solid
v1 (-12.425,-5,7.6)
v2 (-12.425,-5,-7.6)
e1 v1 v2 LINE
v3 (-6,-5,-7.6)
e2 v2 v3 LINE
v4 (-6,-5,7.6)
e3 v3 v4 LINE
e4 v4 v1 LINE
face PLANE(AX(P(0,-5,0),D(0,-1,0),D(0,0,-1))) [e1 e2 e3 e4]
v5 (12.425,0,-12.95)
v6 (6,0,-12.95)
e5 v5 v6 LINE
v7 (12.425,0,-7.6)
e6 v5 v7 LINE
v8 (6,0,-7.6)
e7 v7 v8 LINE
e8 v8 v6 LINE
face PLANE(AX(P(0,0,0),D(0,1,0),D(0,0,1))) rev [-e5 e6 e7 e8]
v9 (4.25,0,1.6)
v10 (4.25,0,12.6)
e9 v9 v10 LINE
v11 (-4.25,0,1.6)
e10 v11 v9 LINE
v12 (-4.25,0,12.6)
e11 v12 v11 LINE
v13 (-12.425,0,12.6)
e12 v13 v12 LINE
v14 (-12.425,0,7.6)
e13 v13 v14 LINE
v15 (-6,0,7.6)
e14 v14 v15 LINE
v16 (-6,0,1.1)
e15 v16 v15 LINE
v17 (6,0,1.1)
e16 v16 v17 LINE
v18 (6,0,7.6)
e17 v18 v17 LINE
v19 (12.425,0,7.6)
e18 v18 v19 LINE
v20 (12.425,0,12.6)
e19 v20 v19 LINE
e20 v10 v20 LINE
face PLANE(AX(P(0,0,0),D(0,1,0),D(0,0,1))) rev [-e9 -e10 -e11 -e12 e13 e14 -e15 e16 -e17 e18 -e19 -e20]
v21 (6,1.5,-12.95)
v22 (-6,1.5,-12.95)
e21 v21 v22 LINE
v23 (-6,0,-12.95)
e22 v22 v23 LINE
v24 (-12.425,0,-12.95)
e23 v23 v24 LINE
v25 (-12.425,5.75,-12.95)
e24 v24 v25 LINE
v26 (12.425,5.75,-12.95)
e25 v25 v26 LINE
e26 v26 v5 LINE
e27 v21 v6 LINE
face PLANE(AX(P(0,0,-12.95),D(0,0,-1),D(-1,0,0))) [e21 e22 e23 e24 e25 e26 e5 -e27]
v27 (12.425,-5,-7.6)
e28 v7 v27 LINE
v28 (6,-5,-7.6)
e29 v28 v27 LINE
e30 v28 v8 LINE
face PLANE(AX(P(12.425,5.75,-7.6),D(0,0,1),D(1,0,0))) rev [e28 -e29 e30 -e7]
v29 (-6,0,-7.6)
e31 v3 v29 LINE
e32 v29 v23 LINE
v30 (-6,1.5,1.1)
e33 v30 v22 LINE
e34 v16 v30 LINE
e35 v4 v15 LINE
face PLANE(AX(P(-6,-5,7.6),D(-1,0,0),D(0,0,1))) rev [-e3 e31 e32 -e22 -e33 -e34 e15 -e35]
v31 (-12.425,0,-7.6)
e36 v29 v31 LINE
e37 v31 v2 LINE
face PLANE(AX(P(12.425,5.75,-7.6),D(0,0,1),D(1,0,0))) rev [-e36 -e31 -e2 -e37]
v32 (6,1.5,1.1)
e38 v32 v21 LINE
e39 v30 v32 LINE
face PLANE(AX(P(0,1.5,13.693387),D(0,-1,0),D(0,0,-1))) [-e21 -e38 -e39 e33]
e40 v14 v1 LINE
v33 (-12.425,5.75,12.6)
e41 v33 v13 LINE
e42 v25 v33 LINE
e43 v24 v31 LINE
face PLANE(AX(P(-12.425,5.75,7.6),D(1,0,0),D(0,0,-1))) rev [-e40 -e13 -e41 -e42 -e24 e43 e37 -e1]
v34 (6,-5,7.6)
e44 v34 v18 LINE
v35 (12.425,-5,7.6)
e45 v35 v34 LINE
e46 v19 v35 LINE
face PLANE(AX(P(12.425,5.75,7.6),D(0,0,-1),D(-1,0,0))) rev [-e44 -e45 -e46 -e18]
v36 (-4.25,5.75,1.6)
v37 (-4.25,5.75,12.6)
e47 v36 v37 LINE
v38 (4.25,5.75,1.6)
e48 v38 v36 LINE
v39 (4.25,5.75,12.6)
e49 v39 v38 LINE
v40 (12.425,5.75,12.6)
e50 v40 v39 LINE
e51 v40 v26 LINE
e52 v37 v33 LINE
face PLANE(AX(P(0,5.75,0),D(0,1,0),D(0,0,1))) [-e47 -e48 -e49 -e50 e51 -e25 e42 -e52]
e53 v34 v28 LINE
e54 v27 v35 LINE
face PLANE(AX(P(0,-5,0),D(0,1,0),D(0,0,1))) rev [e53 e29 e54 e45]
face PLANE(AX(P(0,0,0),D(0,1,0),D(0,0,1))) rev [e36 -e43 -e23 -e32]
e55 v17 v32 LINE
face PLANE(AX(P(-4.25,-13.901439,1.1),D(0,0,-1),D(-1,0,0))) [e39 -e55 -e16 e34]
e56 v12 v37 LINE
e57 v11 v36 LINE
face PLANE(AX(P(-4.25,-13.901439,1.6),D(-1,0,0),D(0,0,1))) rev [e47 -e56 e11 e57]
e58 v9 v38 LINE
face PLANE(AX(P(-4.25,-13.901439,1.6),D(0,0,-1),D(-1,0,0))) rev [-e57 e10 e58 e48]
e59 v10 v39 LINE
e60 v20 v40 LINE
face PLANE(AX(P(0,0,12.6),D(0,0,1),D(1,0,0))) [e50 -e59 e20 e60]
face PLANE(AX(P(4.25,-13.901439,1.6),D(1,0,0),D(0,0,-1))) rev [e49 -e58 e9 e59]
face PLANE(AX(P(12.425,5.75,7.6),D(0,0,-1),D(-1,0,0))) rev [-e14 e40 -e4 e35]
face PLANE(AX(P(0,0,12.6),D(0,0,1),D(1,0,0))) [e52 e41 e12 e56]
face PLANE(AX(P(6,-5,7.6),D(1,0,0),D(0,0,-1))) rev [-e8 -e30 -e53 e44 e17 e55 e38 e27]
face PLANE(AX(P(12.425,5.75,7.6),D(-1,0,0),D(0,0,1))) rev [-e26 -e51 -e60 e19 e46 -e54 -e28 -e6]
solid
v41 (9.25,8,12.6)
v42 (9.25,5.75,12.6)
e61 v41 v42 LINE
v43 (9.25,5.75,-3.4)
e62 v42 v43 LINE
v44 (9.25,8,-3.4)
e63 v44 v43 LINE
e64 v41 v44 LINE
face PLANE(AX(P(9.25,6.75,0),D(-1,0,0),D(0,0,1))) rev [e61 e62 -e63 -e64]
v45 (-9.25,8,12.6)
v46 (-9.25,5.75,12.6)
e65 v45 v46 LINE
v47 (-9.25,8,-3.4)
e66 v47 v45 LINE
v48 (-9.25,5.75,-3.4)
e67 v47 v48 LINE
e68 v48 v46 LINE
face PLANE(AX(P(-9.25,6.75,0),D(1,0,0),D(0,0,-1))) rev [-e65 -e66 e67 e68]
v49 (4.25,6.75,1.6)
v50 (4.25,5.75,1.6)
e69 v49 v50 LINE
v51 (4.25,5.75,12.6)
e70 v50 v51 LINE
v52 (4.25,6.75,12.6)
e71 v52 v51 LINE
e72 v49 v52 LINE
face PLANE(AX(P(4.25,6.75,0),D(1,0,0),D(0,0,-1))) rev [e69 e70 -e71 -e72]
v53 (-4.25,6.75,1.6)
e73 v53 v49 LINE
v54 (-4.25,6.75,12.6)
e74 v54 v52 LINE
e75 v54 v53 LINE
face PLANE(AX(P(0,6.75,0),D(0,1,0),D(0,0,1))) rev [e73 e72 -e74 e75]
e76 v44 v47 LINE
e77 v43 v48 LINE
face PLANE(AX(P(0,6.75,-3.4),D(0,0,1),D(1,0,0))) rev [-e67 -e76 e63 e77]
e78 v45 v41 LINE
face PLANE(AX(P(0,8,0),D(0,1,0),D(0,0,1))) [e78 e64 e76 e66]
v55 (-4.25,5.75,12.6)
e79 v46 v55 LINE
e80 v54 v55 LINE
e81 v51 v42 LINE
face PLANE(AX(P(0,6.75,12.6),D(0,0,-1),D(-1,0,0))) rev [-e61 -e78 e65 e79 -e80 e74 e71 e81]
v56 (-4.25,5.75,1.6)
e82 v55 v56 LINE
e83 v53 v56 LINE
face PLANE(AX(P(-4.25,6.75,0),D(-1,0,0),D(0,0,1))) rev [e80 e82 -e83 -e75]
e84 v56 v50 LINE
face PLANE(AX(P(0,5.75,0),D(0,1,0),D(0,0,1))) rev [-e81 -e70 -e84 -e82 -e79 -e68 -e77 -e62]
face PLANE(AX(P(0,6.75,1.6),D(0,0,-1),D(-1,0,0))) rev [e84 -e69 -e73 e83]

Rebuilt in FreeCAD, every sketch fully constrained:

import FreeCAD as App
import Part
import Sketcher

doc = App.newDocument("Part")
body = doc.addObject("PartDesign::Body", "Body")

# Sketch on XZ plane
sketch1 = body.newObject("Sketcher::SketchObject", "Sketch")
sketch1.AttachmentSupport = (doc.getObject("XZ_Plane"), [""])
sketch1.MapMode = "FlatFace"
sketch1.addGeometry([
    Part.LineSegment(App.Vector(-12, -8, 0), App.Vector(-12, 8, 0)),
    Part.LineSegment(App.Vector(-12, 8, 0), App.Vector(12, 8, 0)),
    Part.LineSegment(App.Vector(12, 8, 0), App.Vector(12, -8, 0)),
    Part.LineSegment(App.Vector(12, -8, 0), App.Vector(-12, -8, 0)),
], False)
sketch1.addConstraint([
    Sketcher.Constraint("Coincident", 0, 2, 1, 1),
    Sketcher.Constraint("Coincident", 1, 2, 2, 1),
    Sketcher.Constraint("Coincident", 2, 2, 3, 1),
    Sketcher.Constraint("Coincident", 3, 2, 0, 1),
    Sketcher.Constraint("Vertical", 0),
    Sketcher.Constraint("Horizontal", 1),
    Sketcher.Constraint("Vertical", 2),
    Sketcher.Constraint("Horizontal", 3),
    Sketcher.Constraint("Symmetric", 0, 2, 2, 2, -1, 1),
    Sketcher.Constraint("DistanceY", 0, 1, 0, 2, 15.2),
    Sketcher.Constraint("DistanceX", 1, 1, 1, 2, 24.85),
])
pad1 = body.newObject("PartDesign::Pad", "Pad")
pad1.Profile = sketch1
pad1.Length = 5.75
pad1.Reversed = True

# Sketch on XZ plane
sketch2 = body.newObject("Sketcher::SketchObject", "Sketch001")
sketch2.AttachmentSupport = (doc.getObject("XZ_Plane"), [""])
sketch2.MapMode = "FlatFace"
sketch2.addGeometry([
    Part.LineSegment(App.Vector(-12, 8, 0), App.Vector(-12, -8, 0)),  # 0
    Part.LineSegment(App.Vector(-12, -8, 0), App.Vector(-6, -8, 0)),  # 1
    Part.LineSegment(App.Vector(-6, -8, 0), App.Vector(-6, 8, 0)),  # 2
    Part.LineSegment(App.Vector(-6, 8, 0), App.Vector(-12, 8, 0)),  # 3
    Part.LineSegment(App.Vector(6, 8, 0), App.Vector(6, -8, 0)),  # 4
    Part.LineSegment(App.Vector(6, -8, 0), App.Vector(12, -8, 0)),  # 5
    Part.LineSegment(App.Vector(12, -8, 0), App.Vector(12, 8, 0)),  # 6
    Part.LineSegment(App.Vector(12, 8, 0), App.Vector(6, 8, 0)),  # 7
], False)
sketch2.addConstraint([
    Sketcher.Constraint("Coincident", 0, 2, 1, 1),
    Sketcher.Constraint("Coincident", 1, 2, 2, 1),
    Sketcher.Constraint("Coincident", 2, 2, 3, 1),
    Sketcher.Constraint("Coincident", 3, 2, 0, 1),
    Sketcher.Constraint("Coincident", 4, 2, 5, 1),
    Sketcher.Constraint("Coincident", 5, 2, 6, 1),
    Sketcher.Constraint("Coincident", 6, 2, 7, 1),
    Sketcher.Constraint("Coincident", 7, 2, 4, 1),
    Sketcher.Constraint("Vertical", 0),
    Sketcher.Constraint("Horizontal", 1),
    Sketcher.Constraint("Vertical", 2),
    Sketcher.Constraint("Horizontal", 3),
    Sketcher.Constraint("Vertical", 4),
    Sketcher.Constraint("Horizontal", 5),
    Sketcher.Constraint("Vertical", 6),
    Sketcher.Constraint("Horizontal", 7),
    Sketcher.Constraint("Symmetric", 2, 2, 4, 2, -1, 1),
    Sketcher.Constraint("Symmetric", 0, 2, 6, 2, -1, 1),
    Sketcher.Constraint("Horizontal", 1, 2, 4, 2),
    Sketcher.Constraint("DistanceY", 0, 2, 0, 1, 15.2),
    Sketcher.Constraint("DistanceX", 1, 2, -1, 1, 6.0),
    Sketcher.Constraint("DistanceX", 1, 1, 1, 2, 6.425),
])
pad2 = body.newObject("PartDesign::Pad", "Pad001")
pad2.Profile = sketch2
pad2.Length = 5

# Sketch on XY plane
sketch3 = body.newObject("Sketcher::SketchObject", "Sketch002")
sketch3.AttachmentSupport = (doc.getObject("XY_Plane"), [""])
sketch3.MapMode = "FlatFace"
sketch3.AttachmentOffset = App.Placement(App.Vector(0, 0, -7.6), App.Rotation())
sketch3.addGeometry([
    Part.LineSegment(App.Vector(12, 6, 0), App.Vector(12, 0, 0)),
    Part.LineSegment(App.Vector(12, 0, 0), App.Vector(-12, 0, 0)),
    Part.LineSegment(App.Vector(-12, 0, 0), App.Vector(-12, 6, 0)),
    Part.LineSegment(App.Vector(-12, 6, 0), App.Vector(12, 6, 0)),
], False)
sketch3.addConstraint([
    Sketcher.Constraint("Coincident", 0, 2, 1, 1),
    Sketcher.Constraint("Coincident", 1, 2, 2, 1),
    Sketcher.Constraint("Coincident", 2, 2, 3, 1),
    Sketcher.Constraint("Coincident", 3, 2, 0, 1),
    Sketcher.Constraint("Vertical", 0),
    Sketcher.Constraint("Horizontal", 1),
    Sketcher.Constraint("Vertical", 2),
    Sketcher.Constraint("Horizontal", 3),
    Sketcher.Constraint("Symmetric", 0, 2, 1, 2, -1, 1),
    Sketcher.Constraint("DistanceX", 1, 2, 1, 1, 24.85),
    Sketcher.Constraint("DistanceY", 0, 2, 0, 1, 5.75),
])
pad3 = body.newObject("PartDesign::Pad", "Pad002")
pad3.Profile = sketch3
pad3.Length = 5.35
pad3.Reversed = True

# Sketch on XY plane
sketch4 = body.newObject("Sketcher::SketchObject", "Sketch003")
sketch4.AttachmentSupport = (doc.getObject("XY_Plane"), [""])
sketch4.MapMode = "FlatFace"
sketch4.AttachmentOffset = App.Placement(App.Vector(0, 0, 7.6), App.Rotation())
sketch4.addGeometry([
    Part.LineSegment(App.Vector(-12, 6, 0), App.Vector(-12, 0, 0)),
    Part.LineSegment(App.Vector(-12, 0, 0), App.Vector(12, 0, 0)),
    Part.LineSegment(App.Vector(12, 0, 0), App.Vector(12, 6, 0)),
    Part.LineSegment(App.Vector(12, 6, 0), App.Vector(-12, 6, 0)),
], False)
sketch4.addConstraint([
    Sketcher.Constraint("Coincident", 0, 2, 1, 1),
    Sketcher.Constraint("Coincident", 1, 2, 2, 1),
    Sketcher.Constraint("Coincident", 2, 2, 3, 1),
    Sketcher.Constraint("Coincident", 3, 2, 0, 1),
    Sketcher.Constraint("Vertical", 0),
    Sketcher.Constraint("Horizontal", 1),
    Sketcher.Constraint("Vertical", 2),
    Sketcher.Constraint("Horizontal", 3),
    Sketcher.Constraint("Symmetric", 0, 2, 1, 2, -1, 1),
    Sketcher.Constraint("DistanceX", 1, 1, 1, 2, 24.85),
    Sketcher.Constraint("DistanceY", 0, 2, 0, 1, 5.75),
])
pad4 = body.newObject("PartDesign::Pad", "Pad003")
pad4.Profile = sketch4
pad4.Length = 5

# Sketch on XZ plane
sketch5 = body.newObject("Sketcher::SketchObject", "Sketch004")
sketch5.AttachmentSupport = (doc.getObject("XZ_Plane"), [""])
sketch5.MapMode = "FlatFace"
sketch5.AttachmentOffset = App.Placement(App.Vector(0, 0, -5.75), App.Rotation())
sketch5.addGeometry([
    Part.LineSegment(App.Vector(-4, 2, 0), App.Vector(-4, 13, 0)),
    Part.LineSegment(App.Vector(-4, 13, 0), App.Vector(4, 13, 0)),
    Part.LineSegment(App.Vector(4, 13, 0), App.Vector(4, 2, 0)),
    Part.LineSegment(App.Vector(4, 2, 0), App.Vector(-4, 2, 0)),
], False)
sketch5.addConstraint([
    Sketcher.Constraint("Coincident", 0, 2, 1, 1),
    Sketcher.Constraint("Coincident", 1, 2, 2, 1),
    Sketcher.Constraint("Coincident", 2, 2, 3, 1),
    Sketcher.Constraint("Coincident", 3, 2, 0, 1),
    Sketcher.Constraint("Vertical", 0),
    Sketcher.Constraint("Horizontal", 1),
    Sketcher.Constraint("Vertical", 2),
    Sketcher.Constraint("Horizontal", 3),
    Sketcher.Constraint("DistanceY", 0, 1, 0, 2, 11.0),
    Sketcher.Constraint("DistanceX", 1, 1, 1, 2, 8.5),
    Sketcher.Constraint("DistanceY", -1, 1, 0, 2, 12.6),
    Sketcher.Constraint("DistanceX", 0, 2, -1, 1, 4.25),
])
pocket1 = body.newObject("PartDesign::Pocket", "Pocket")
pocket1.Profile = sketch5
pocket1.Length = 5.75
pocket1.Reversed = True

# Sketch on XY plane
sketch6 = body.newObject("Sketcher::SketchObject", "Sketch005")
sketch6.AttachmentSupport = (doc.getObject("XY_Plane"), [""])
sketch6.MapMode = "FlatFace"
sketch6.AttachmentOffset = App.Placement(App.Vector(0, 0, -12.95), App.Rotation())
sketch6.addGeometry([
    Part.LineSegment(App.Vector(6, 1.5, 0), App.Vector(6, 0, 0)),
    Part.LineSegment(App.Vector(6, 0, 0), App.Vector(-6, 0, 0)),
    Part.LineSegment(App.Vector(-6, 0, 0), App.Vector(-6, 1.5, 0)),
    Part.LineSegment(App.Vector(-6, 1.5, 0), App.Vector(6, 1.5, 0)),
], False)
sketch6.addConstraint([
    Sketcher.Constraint("Coincident", 0, 2, 1, 1),
    Sketcher.Constraint("Coincident", 1, 2, 2, 1),
    Sketcher.Constraint("Coincident", 2, 2, 3, 1),
    Sketcher.Constraint("Coincident", 3, 2, 0, 1),
    Sketcher.Constraint("Vertical", 0),
    Sketcher.Constraint("Horizontal", 1),
    Sketcher.Constraint("Vertical", 2),
    Sketcher.Constraint("Horizontal", 3),
    Sketcher.Constraint("Symmetric", 0, 2, 1, 2, -1, 1),
    Sketcher.Constraint("DistanceX", 1, 2, 1, 1, 12.0),
    Sketcher.Constraint("DistanceY", 0, 2, 0, 1, 1.5),
])
pocket2 = body.newObject("PartDesign::Pocket", "Pocket001")
pocket2.Profile = sketch6
pocket2.Length = 14.05
pocket2.Reversed = True
body2 = doc.addObject("PartDesign::Body", "Body001")

# Sketch on XZ plane
sketch7 = body2.newObject("Sketcher::SketchObject", "Sketch006")
sketch7.AttachmentSupport = (doc.getObject("XZ_Plane001"), [""])
sketch7.MapMode = "FlatFace"
sketch7.AttachmentOffset = App.Placement(App.Vector(0, 0, -5.75), App.Rotation())
sketch7.addGeometry([
    Part.LineSegment(App.Vector(9, -3, 0), App.Vector(-9, -3, 0)),  # 0
    Part.LineSegment(App.Vector(-9, -3, 0), App.Vector(-9, 13, 0)),  # 1
    Part.LineSegment(App.Vector(-9, 13, 0), App.Vector(-4, 13, 0)),  # 2
    Part.LineSegment(App.Vector(-4, 13, 0), App.Vector(-4, 2, 0)),  # 3
    Part.LineSegment(App.Vector(-4, 2, 0), App.Vector(4, 2, 0)),  # 4
    Part.LineSegment(App.Vector(4, 2, 0), App.Vector(4, 13, 0)),  # 5
    Part.LineSegment(App.Vector(4, 13, 0), App.Vector(9, 13, 0)),  # 6
    Part.LineSegment(App.Vector(9, 13, 0), App.Vector(9, -3, 0)),  # 7
], False)
sketch7.addConstraint([
    Sketcher.Constraint("Coincident", 0, 2, 1, 1),
    Sketcher.Constraint("Coincident", 1, 2, 2, 1),
    Sketcher.Constraint("Coincident", 2, 2, 3, 1),
    Sketcher.Constraint("Coincident", 3, 2, 4, 1),
    Sketcher.Constraint("Coincident", 4, 2, 5, 1),
    Sketcher.Constraint("Coincident", 5, 2, 6, 1),
    Sketcher.Constraint("Coincident", 6, 2, 7, 1),
    Sketcher.Constraint("Coincident", 7, 2, 0, 1),
    Sketcher.Constraint("Horizontal", 0),
    Sketcher.Constraint("Vertical", 1),
    Sketcher.Constraint("Horizontal", 2),
    Sketcher.Constraint("Vertical", 3),
    Sketcher.Constraint("Horizontal", 4),
    Sketcher.Constraint("Vertical", 5),
    Sketcher.Constraint("Horizontal", 6),
    Sketcher.Constraint("Vertical", 7),
    Sketcher.Constraint("Symmetric", 2, 2, 5, 2, -2),
    Sketcher.Constraint("Equal", 2, 6),
    Sketcher.Constraint("DistanceX", 2, 1, 2, 2, 5.0),
    Sketcher.Constraint("DistanceY", 1, 1, 1, 2, 16.0),
    Sketcher.Constraint("DistanceY", 3, 2, 3, 1, 11.0),
    Sketcher.Constraint("DistanceX", 0, 2, 0, 1, 18.5),
    Sketcher.Constraint("DistanceY", 0, 2, -1, 1, 3.4),
])
pad5 = body2.newObject("PartDesign::Pad", "Pad004")
pad5.Profile = sketch7
pad5.Length = 1
pad5.Reversed = True

# Sketch on XZ plane
sketch8 = body2.newObject("Sketcher::SketchObject", "Sketch007")
sketch8.AttachmentSupport = (doc.getObject("XZ_Plane001"), [""])
sketch8.MapMode = "FlatFace"
sketch8.AttachmentOffset = App.Placement(App.Vector(0, 0, -6.75), App.Rotation())
sketch8.addGeometry([
    Part.LineSegment(App.Vector(-9, -3, 0), App.Vector(-9, 13, 0)),
    Part.LineSegment(App.Vector(-9, 13, 0), App.Vector(9, 13, 0)),
    Part.LineSegment(App.Vector(9, 13, 0), App.Vector(9, -3, 0)),
    Part.LineSegment(App.Vector(9, -3, 0), App.Vector(-9, -3, 0)),
], False)
sketch8.addConstraint([
    Sketcher.Constraint("Coincident", 0, 2, 1, 1),
    Sketcher.Constraint("Coincident", 1, 2, 2, 1),
    Sketcher.Constraint("Coincident", 2, 2, 3, 1),
    Sketcher.Constraint("Coincident", 3, 2, 0, 1),
    Sketcher.Constraint("Vertical", 0),
    Sketcher.Constraint("Horizontal", 1),
    Sketcher.Constraint("Vertical", 2),
    Sketcher.Constraint("Horizontal", 3),
    Sketcher.Constraint("DistanceY", 0, 1, 0, 2, 16.0),
    Sketcher.Constraint("DistanceX", 1, 1, 1, 2, 18.5),
    Sketcher.Constraint("DistanceY", -1, 1, 0, 2, 12.6),
    Sketcher.Constraint("DistanceX", 0, 2, -1, 1, 9.25),
])
pad6 = body2.newObject("PartDesign::Pad", "Pad005")
pad6.Profile = sketch8
pad6.Length = 1.25
pad6.Reversed = True

doc.recompute()
